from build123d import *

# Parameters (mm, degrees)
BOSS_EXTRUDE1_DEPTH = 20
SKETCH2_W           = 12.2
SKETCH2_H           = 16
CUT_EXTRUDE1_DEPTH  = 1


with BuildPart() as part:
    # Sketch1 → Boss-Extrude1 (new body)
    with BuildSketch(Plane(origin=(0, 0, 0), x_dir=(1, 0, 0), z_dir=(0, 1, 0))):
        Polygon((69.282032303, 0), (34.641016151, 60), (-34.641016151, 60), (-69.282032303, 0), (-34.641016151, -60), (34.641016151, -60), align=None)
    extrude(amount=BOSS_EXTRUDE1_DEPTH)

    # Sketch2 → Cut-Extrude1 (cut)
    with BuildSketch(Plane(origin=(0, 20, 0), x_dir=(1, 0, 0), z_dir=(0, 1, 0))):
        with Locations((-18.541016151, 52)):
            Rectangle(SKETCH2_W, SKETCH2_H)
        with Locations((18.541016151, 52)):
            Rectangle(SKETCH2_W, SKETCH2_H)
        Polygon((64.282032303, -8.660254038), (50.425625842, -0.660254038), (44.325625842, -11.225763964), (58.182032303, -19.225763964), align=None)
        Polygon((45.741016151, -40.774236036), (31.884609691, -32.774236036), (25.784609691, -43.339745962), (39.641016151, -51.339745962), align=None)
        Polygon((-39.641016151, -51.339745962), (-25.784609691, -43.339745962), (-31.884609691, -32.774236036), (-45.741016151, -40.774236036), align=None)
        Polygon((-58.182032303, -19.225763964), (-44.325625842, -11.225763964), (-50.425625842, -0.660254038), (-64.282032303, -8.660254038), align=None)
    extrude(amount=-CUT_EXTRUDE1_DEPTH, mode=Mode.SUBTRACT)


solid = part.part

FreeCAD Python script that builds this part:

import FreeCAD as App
import Part
import Sketcher

V = App.Vector
Q = App.Units.Quantity

doc = App.newDocument("Part")
params = doc.addObject("Spreadsheet::Sheet", "Params")
for row, (alias, value) in enumerate([
    ("pad1_length", "20 mm"),
    ("sketch2_height", "16 mm"),
    ("sketch2_length", "16 mm"),
    ("sketch2_width", "12.2 mm"),
    ("sketch2_length2", "12.2 mm"),
    ("pocket1_length", "1 mm"),
], start=1):
    params.set(f"A{row}", alias)
    params.set(f"B{row}", "=" + value)
    params.setAlias(f"B{row}", alias)

body = doc.addObject("PartDesign::Body", "Body")

sketch1 = doc.addObject("Sketcher::SketchObject", "Sketch")
body.addObject(sketch1)
sketch1.AttachmentSupport = (doc.XZ_Plane, [""])
sketch1.MapMode = "FlatFace"
sketch1.addGeometry([
    Part.LineSegment(V(69, 0, 0), V(35, -60, 0)),
    Part.LineSegment(V(35, -60, 0), V(-35, -60, 0)),
    Part.LineSegment(V(-35, -60, 0), V(-69, 0, 0)),
    Part.LineSegment(V(-69, 0, 0), V(-35, 60, 0)),
    Part.LineSegment(V(-35, 60, 0), V(35, 60, 0)),
    Part.LineSegment(V(35, 60, 0), V(69, 0, 0)),
], False)
sketch1.addConstraint([
    Sketcher.Constraint("Coincident", 0, 2, 1, 1),
    Sketcher.Constraint("Coincident", 1, 2, 2, 1),
    Sketcher.Constraint("Coincident", 2, 2, 3, 1),
    Sketcher.Constraint("Coincident", 3, 2, 4, 1),
    Sketcher.Constraint("Coincident", 4, 2, 5, 1),
    Sketcher.Constraint("Coincident", 5, 2, 0, 1),
    Sketcher.Constraint("Horizontal", 1),
    Sketcher.Constraint("Horizontal", 4),
    Sketcher.Constraint("Symmetric", 0, 2, 3, 2, -1, 1),
    Sketcher.Constraint("Symmetric", 2, 2, 5, 2, -1, 1),
    Sketcher.Constraint("PointOnObject", 2, 2, -1),
    Sketcher.Constraint("Parallel", 2, 5),
    Sketcher.Constraint("Vertical", 1, 2, 3, 2),
    Sketcher.Constraint("Angle", 0, Q("-120 deg")),
    Sketcher.Constraint("DistanceY", 0, 2, -1, 1, Q("60 mm")),
    Sketcher.Constraint("DistanceX", 1, 2, 1, 1, Q("69.282032 mm")),
])
pad1 = doc.addObject("PartDesign::Pad", "Pad")
body.addObject(pad1)
pad1.Profile = sketch1
pad1.setExpression("Length", "Params.pad1_length")
pad1.Reversed = True

sketch2 = doc.addObject("Sketcher::SketchObject", "Sketch001")
body.addObject(sketch2)
sketch2.AttachmentSupport = (doc.XZ_Plane, [""])
sketch2.MapMode = "FlatFace"
sketch2.AttachmentOffset = App.Placement(V(0, 0, -20), App.Rotation())
sketch2.addGeometry([
    Part.LineSegment(V(-25, -60, 0), V(-25, -44, 0)),
    Part.LineSegment(V(-25, -44, 0), V(-12, -44, 0)),
    Part.LineSegment(V(-12, -44, 0), V(-12, -60, 0)),
    Part.LineSegment(V(-12, -60, 0), V(-25, -60, 0)),
    Part.LineSegment(V(12, -60, 0), V(12, -44, 0)),
    Part.LineSegment(V(12, -44, 0), V(25, -44, 0)),
    Part.LineSegment(V(25, -44, 0), V(25, -60, 0)),
    Part.LineSegment(V(25, -60, 0), V(12, -60, 0)),
    Part.LineSegment(V(64, 9, 0), V(50, 1, 0)),
    Part.LineSegment(V(50, 1, 0), V(44, 11, 0)),
    Part.LineSegment(V(44, 11, 0), V(58, 19, 0)),
    Part.LineSegment(V(58, 19, 0), V(64, 9, 0)),
    Part.LineSegment(V(46, 41, 0), V(32, 33, 0)),
    Part.LineSegment(V(32, 33, 0), V(26, 43, 0)),
    Part.LineSegment(V(26, 43, 0), V(40, 51, 0)),
    Part.LineSegment(V(40, 51, 0), V(46, 41, 0)),
    Part.LineSegment(V(-40, 51, 0), V(-26, 43, 0)),
    Part.LineSegment(V(-26, 43, 0), V(-32, 33, 0)),
    Part.LineSegment(V(-32, 33, 0), V(-46, 41, 0)),
    Part.LineSegment(V(-46, 41, 0), V(-40, 51, 0)),
    Part.LineSegment(V(-58, 19, 0), V(-44, 11, 0)),
    Part.LineSegment(V(-44, 11, 0), V(-50, 1, 0)),
    Part.LineSegment(V(-50, 1, 0), V(-64, 9, 0)),
    Part.LineSegment(V(-64, 9, 0), V(-58, 19, 0)),
], False)
sketch2.addConstraint([
    Sketcher.Constraint("Coincident", 0, 2, 1, 1),
    Sketcher.Constraint("Coincident", 1, 2, 2, 1),
    Sketcher.Constraint("Coincident", 2, 2, 3, 1),
    Sketcher.Constraint("Coincident", 3, 2, 0, 1),
    Sketcher.Constraint("Coincident", 4, 2, 5, 1),
    Sketcher.Constraint("Coincident", 5, 2, 6, 1),
    Sketcher.Constraint("Coincident", 6, 2, 7, 1),
    Sketcher.Constraint("Coincident", 7, 2, 4, 1),
    Sketcher.Constraint("Coincident", 8, 2, 9, 1),
    Sketcher.Constraint("Coincident", 9, 2, 10, 1),
    Sketcher.Constraint("Coincident", 10, 2, 11, 1),
    Sketcher.Constraint("Coincident", 11, 2, 8, 1),
    Sketcher.Constraint("Coincident", 12, 2, 13, 1),
    Sketcher.Constraint("Coincident", 13, 2, 14, 1),
    Sketcher.Constraint("Coincident", 14, 2, 15, 1),
    Sketcher.Constraint("Coincident", 15, 2, 12, 1),
    Sketcher.Constraint("Coincident", 16, 2, 17, 1),
    Sketcher.Constraint("Coincident", 17, 2, 18, 1),
    Sketcher.Constraint("Coincident", 18, 2, 19, 1),
    Sketcher.Constraint("Coincident", 19, 2, 16, 1),
    Sketcher.Constraint("Coincident", 20, 2, 21, 1),
    Sketcher.Constraint("Coincident", 21, 2, 22, 1),
    Sketcher.Constraint("Coincident", 22, 2, 23, 1),
    Sketcher.Constraint("Coincident", 23, 2, 20, 1),
    Sketcher.Constraint("Vertical", 0),
    Sketcher.Constraint("Horizontal", 1),
    Sketcher.Constraint("Vertical", 2),
    Sketcher.Constraint("Horizontal", 3),
    Sketcher.Constraint("Vertical", 4),
    Sketcher.Constraint("Horizontal", 5),
    Sketcher.Constraint("Vertical", 6),
    Sketcher.Constraint("Horizontal", 7),
    Sketcher.Constraint("Symmetric", 1, 2, 4, 2, -2),
    Sketcher.Constraint("Symmetric", 3, 2, 6, 2, -2),
    Sketcher.Constraint("Symmetric", 13, 2, 16, 2, -2),
    Sketcher.Constraint("Symmetric", 12, 2, 17, 2, -2),
    Sketcher.Constraint("Symmetric", 15, 2, 18, 2, -2),
    Sketcher.Constraint("Symmetric", 14, 2, 19, 2, -2),
    Sketcher.Constraint("Symmetric", 9, 2, 20, 2, -2),
    Sketcher.Constraint("Symmetric", 8, 2, 21, 2, -2),
    Sketcher.Constraint("Symmetric", 11, 2, 22, 2, -2),
    Sketcher.Constraint("Symmetric", 10, 2, 23, 2, -2),
    Sketcher.Constraint("Perpendicular", 8, 9),
    Sketcher.Constraint("Perpendicular", 9, 10),
    Sketcher.Constraint("Perpendicular", 10, 11),
    Sketcher.Constraint("Perpendicular", 11, 12),
    Sketcher.Constraint("Perpendicular", 12, 13),
    Sketcher.Constraint("Perpendicular", 13, 14),
    Sketcher.Constraint("Perpendicular", 14, 15),
    Sketcher.Constraint("Equal", 10, 12),
    Sketcher.Constraint("Equal", 11, 13),
    Sketcher.Constraint("DistanceY", 0, 1, 0, 2, Q("16 mm")),
    Sketcher.Constraint("Angle", 8, Q("-150 deg")),
    Sketcher.Constraint("Distance", 8, Q("16 mm")),
    Sketcher.Constraint("DistanceX", 1, 1, 1, 2, Q("12.2 mm")),
    Sketcher.Constraint("DistanceY", 0, 2, -1, 1, Q("44 mm")),
    Sketcher.Constraint("Distance", 9, Q("12.2 mm")),
    Sketcher.Constraint("DistanceX", -1, 1, 12, 2, Q("31.88461 mm")),
    Sketcher.Constraint("DistanceX", 5, 2, 8, 2, Q("25.78461 mm")),
    Sketcher.Constraint("DistanceX", 1, 2, 8, 2, Q("62.866642 mm")),
    Sketcher.Constraint("DistanceY", 8, 2, 12, 2, Q("32.113982 mm")),
    Sketcher.Constraint("DistanceY", -1, 1, 8, 2, Q("0.660254 mm")),
])
sketch2.setExpression("Constraints[51]", "Params.sketch2_height")
sketch2.setExpression("Constraints[53]", "Params.sketch2_length")
sketch2.setExpression("Constraints[54]", "Params.sketch2_width")
sketch2.setExpression("Constraints[56]", "Params.sketch2_length2")
pocket1 = doc.addObject("PartDesign::Pocket", "Pocket")
body.addObject(pocket1)
pocket1.Profile = sketch2
pocket1.setExpression("Length", "Params.pocket1_length")
pocket1.Reversed = True

doc.recompute()
